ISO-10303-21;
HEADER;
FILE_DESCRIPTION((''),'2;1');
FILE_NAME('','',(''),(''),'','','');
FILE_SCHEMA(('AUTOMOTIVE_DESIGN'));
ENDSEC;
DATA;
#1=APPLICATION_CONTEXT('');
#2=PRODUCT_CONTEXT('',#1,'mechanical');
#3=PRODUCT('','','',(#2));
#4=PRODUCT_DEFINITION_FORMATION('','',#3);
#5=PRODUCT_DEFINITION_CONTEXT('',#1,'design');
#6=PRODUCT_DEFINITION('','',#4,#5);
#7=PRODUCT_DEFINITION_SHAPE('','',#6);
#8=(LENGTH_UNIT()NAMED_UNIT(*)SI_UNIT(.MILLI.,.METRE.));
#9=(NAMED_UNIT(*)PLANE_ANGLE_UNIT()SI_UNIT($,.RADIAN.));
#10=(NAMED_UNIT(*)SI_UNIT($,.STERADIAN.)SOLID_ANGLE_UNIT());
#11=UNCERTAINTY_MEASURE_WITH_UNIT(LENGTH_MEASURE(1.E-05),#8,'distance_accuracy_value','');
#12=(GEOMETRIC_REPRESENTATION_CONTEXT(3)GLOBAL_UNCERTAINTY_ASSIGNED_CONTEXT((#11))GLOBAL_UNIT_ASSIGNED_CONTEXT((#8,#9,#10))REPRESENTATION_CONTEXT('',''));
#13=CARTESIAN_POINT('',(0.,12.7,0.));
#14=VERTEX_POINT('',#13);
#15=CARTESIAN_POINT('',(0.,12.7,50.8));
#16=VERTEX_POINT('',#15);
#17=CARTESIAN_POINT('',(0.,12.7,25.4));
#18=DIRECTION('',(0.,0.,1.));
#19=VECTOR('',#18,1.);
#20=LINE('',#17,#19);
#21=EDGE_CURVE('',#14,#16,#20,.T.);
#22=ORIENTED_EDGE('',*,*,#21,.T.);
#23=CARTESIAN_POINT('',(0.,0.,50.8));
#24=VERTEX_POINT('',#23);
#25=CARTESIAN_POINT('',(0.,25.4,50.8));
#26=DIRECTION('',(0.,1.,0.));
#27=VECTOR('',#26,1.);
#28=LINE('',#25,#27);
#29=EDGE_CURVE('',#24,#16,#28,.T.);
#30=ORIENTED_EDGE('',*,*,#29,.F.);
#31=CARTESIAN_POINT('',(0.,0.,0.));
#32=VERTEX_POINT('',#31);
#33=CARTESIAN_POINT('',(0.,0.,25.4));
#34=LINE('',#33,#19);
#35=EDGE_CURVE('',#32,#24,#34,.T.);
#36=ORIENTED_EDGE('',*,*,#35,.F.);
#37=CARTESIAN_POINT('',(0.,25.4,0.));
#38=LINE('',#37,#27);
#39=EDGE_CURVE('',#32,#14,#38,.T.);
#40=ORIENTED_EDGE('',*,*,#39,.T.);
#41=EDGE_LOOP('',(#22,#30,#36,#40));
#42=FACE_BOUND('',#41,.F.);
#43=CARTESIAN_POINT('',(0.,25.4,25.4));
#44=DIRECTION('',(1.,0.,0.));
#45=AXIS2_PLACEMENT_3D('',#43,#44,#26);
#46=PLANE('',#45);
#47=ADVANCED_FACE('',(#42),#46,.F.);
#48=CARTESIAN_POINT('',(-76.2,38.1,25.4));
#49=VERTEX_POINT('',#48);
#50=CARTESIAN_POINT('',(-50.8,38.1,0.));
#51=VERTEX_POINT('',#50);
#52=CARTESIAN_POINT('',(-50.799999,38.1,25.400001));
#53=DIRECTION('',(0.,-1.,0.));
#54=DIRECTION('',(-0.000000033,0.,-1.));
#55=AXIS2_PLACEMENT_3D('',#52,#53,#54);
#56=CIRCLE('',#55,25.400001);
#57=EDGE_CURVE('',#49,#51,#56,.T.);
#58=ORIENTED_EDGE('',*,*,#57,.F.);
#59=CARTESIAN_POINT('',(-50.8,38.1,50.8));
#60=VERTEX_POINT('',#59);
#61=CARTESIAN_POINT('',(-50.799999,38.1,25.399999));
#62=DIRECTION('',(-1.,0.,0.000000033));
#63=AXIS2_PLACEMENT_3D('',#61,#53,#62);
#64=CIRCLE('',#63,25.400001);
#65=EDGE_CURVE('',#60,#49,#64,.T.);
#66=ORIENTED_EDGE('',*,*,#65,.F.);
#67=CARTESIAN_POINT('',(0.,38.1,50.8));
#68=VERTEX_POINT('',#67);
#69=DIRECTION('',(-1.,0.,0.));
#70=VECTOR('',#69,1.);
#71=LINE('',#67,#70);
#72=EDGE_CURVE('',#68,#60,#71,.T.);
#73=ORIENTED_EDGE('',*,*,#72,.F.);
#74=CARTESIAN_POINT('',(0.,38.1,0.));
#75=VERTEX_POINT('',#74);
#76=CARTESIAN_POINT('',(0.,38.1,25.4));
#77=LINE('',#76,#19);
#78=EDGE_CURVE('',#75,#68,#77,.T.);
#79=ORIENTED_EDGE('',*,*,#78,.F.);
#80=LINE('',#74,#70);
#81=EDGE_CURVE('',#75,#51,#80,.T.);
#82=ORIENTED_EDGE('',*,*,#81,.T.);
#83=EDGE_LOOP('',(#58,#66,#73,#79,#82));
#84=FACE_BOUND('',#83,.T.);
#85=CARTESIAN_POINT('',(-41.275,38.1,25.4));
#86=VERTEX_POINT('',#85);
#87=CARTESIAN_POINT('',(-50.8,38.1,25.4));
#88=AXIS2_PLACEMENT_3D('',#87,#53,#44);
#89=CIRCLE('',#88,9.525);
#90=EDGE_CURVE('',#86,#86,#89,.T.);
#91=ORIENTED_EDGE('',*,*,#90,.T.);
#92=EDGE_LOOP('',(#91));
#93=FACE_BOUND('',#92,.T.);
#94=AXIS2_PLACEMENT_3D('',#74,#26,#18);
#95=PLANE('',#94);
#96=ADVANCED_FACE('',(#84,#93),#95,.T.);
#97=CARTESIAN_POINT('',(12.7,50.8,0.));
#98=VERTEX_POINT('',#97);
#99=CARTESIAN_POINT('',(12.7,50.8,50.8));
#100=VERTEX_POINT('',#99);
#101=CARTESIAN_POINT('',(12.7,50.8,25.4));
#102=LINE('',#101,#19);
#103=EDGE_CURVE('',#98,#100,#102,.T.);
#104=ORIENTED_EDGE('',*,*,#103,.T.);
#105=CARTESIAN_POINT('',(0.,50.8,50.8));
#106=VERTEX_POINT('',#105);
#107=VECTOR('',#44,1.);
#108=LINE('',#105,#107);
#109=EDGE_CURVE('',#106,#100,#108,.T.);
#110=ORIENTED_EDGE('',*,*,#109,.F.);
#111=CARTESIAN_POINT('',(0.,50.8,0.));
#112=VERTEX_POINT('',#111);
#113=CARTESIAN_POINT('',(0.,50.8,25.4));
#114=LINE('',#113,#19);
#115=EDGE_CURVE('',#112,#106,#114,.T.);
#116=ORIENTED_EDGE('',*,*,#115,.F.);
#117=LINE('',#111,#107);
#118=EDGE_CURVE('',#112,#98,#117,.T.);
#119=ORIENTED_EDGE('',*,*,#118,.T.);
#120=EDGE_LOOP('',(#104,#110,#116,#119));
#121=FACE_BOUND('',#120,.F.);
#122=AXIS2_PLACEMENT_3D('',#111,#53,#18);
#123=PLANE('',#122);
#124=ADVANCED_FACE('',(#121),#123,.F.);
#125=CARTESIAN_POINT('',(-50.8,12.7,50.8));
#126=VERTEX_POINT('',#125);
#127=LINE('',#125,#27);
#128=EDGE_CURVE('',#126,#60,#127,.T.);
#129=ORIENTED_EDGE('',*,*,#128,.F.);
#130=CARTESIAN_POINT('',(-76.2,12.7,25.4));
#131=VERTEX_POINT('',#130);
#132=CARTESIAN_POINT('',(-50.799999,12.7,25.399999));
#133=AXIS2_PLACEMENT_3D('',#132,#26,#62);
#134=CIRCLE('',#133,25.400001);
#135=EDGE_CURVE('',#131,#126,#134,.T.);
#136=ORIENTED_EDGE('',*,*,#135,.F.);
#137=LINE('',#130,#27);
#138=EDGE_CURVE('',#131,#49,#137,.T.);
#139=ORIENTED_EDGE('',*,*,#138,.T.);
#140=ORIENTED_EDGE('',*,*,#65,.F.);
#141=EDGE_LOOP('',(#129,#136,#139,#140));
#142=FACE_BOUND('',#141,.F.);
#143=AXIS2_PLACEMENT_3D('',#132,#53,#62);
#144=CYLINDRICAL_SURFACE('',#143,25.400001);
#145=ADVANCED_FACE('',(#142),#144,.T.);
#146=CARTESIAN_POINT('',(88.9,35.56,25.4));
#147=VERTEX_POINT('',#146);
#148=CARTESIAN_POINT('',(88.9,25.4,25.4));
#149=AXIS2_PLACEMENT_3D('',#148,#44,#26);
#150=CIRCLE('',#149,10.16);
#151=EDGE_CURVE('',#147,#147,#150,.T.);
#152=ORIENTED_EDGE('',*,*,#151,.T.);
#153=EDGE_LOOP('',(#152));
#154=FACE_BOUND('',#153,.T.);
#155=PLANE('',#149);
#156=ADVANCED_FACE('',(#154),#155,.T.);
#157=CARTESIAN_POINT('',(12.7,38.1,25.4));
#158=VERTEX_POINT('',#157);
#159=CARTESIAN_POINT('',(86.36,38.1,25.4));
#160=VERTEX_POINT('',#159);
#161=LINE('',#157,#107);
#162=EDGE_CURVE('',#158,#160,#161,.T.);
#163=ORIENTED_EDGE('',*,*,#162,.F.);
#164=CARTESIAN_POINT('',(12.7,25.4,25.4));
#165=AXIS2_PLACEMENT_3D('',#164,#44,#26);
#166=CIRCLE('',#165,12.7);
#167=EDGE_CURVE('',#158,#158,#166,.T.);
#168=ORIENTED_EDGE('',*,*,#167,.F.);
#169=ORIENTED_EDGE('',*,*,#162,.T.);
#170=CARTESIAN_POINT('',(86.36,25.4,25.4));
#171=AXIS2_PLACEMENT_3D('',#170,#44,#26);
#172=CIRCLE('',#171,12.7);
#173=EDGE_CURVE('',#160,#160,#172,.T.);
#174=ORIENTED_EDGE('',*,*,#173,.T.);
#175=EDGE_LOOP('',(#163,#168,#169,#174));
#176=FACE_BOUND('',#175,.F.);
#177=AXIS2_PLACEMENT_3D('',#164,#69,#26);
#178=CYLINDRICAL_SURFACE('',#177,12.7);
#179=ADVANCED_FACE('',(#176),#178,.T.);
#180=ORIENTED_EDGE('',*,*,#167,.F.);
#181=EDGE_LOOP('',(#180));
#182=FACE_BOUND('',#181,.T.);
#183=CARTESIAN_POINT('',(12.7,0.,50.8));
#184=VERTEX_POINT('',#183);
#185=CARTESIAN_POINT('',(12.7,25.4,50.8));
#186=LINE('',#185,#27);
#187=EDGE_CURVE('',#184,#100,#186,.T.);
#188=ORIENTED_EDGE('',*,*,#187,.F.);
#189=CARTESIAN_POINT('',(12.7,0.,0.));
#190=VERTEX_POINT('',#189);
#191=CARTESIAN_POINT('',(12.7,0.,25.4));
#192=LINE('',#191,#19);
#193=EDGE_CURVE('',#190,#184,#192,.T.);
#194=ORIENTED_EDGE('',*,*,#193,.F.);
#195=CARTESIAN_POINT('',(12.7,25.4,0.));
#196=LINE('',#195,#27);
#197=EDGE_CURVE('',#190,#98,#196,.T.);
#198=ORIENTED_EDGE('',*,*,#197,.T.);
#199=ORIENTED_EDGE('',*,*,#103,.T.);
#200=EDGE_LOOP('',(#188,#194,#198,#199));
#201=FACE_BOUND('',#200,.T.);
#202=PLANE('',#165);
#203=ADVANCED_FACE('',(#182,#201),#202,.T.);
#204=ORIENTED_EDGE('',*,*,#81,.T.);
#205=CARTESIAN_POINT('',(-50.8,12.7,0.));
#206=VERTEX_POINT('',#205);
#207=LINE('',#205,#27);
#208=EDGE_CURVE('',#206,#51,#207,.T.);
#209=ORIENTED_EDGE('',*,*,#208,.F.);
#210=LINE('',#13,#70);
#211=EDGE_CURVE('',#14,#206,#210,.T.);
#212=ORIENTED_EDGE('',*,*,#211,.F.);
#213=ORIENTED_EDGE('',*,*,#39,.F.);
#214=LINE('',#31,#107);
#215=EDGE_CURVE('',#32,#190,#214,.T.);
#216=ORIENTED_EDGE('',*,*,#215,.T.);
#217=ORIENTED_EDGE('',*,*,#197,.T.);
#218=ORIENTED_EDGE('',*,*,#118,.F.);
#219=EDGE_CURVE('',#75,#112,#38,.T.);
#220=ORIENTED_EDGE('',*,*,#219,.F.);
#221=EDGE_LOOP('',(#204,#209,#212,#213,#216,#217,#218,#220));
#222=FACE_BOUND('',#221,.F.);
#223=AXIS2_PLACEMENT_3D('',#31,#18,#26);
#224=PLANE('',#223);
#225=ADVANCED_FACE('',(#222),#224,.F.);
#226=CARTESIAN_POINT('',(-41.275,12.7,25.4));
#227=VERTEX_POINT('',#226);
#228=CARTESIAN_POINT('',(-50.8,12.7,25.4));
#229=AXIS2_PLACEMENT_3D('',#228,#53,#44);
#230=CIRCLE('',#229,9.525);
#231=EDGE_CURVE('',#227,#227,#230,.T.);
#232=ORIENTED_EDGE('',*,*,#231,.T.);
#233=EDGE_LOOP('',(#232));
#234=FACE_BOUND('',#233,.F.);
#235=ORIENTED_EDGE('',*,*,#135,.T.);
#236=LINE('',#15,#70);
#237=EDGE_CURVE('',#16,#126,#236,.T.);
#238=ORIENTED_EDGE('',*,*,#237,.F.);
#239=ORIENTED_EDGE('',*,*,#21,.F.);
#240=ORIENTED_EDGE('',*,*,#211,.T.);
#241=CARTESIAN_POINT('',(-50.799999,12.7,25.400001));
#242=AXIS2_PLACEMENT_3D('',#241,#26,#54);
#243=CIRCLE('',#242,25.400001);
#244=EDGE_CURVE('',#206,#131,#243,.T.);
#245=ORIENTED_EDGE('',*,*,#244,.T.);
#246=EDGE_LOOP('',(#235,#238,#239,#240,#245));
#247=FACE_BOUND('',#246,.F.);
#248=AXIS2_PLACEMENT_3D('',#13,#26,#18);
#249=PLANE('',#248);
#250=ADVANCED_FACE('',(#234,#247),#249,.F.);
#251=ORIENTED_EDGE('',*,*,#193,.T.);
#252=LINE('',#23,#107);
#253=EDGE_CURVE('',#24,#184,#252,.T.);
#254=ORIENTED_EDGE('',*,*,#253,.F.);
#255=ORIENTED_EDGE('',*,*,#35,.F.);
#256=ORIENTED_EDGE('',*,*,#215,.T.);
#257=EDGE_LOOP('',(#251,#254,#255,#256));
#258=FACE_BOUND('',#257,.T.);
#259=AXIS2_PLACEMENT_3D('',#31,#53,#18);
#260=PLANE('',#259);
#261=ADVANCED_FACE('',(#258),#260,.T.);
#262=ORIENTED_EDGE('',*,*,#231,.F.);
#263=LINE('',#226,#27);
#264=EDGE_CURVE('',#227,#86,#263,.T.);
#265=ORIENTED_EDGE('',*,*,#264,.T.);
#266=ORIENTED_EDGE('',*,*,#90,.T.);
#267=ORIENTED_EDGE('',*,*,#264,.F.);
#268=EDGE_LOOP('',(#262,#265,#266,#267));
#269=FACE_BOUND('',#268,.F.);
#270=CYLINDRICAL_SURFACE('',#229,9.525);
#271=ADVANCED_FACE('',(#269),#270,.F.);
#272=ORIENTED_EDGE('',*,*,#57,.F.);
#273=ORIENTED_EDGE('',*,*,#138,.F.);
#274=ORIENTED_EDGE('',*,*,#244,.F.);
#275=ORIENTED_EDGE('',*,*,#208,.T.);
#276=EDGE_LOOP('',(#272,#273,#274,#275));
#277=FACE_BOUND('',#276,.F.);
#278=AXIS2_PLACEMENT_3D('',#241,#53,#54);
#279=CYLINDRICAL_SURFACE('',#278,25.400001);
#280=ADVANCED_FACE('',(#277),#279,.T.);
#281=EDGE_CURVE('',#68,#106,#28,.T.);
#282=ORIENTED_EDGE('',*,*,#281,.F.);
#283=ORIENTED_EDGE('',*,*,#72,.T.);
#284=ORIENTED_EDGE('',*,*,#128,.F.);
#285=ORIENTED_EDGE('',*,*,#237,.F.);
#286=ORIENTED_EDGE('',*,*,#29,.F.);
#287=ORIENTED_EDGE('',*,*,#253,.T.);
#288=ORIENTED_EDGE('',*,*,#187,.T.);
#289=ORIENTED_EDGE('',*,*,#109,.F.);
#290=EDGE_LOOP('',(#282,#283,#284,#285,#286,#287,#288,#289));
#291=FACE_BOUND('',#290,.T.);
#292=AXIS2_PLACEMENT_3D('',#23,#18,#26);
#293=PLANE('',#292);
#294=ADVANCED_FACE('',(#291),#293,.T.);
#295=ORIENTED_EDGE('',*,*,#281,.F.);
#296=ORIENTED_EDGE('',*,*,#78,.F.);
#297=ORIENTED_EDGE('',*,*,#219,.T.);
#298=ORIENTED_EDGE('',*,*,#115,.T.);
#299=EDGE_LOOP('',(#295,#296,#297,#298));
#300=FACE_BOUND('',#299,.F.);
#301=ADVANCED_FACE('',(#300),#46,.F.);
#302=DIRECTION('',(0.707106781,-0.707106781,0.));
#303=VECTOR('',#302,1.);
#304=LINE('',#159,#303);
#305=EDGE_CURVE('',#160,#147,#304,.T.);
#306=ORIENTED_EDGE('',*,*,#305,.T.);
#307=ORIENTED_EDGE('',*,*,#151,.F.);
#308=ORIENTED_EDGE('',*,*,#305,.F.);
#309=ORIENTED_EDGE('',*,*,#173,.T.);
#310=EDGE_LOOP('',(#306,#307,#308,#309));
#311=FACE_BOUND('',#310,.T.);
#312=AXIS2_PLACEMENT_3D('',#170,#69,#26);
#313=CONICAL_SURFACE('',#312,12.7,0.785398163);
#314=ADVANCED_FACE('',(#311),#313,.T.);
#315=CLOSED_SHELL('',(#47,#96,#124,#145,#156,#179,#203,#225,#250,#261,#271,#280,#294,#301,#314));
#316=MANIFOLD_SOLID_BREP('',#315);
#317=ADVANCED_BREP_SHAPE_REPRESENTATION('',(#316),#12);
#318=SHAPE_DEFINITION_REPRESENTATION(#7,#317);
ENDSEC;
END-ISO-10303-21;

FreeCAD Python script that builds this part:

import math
import FreeCAD as App
import Part
import Sketcher
Q = App.Units.Quantity


def edges_at(feature, points):
    """Names of the edges that pass closest to the given points."""
    edges = feature.Shape.Edges
    near = lambda p: min(range(len(edges)), key=lambda i: edges[i].distToShape(Part.Vertex(*p))[0])
    return sorted({f"Edge{near(p) + 1}" for p in points})


def add_polygon(sketch, points):
    """Adds a closed chain of lines whose ends are joined by coincident constraints."""
    first, n = sketch.GeometryCount, len(points)
    for a, b in zip(points, points[1:] + points[:1]):
        sketch.addGeometry(Part.LineSegment(App.Vector(*a, 0), App.Vector(*b, 0)), False)
    for i in range(n):
        sketch.addConstraint(Sketcher.Constraint("Coincident", first + i, 2, first + (i + 1) % n, 1))

doc = App.newDocument("Part")
params = doc.addObject("Spreadsheet::Sheet", "Params")
for row, (alias, value) in enumerate([
    ("sketch1_width", "2 in"),
    ("pad1_length", "0.5 in"),
    ("sketch2_diameter", "1 in"),
    ("pad2_length", "3 in"),
    ("chamfer_size", "0.1 in"),
    ("sketch3_width", "1 in"),
    ("sketch3_height", "2 in"),
    ("pad3_length", "3 in"),
    ("sketch4_radius", "1 in"),
    ("sketch4_diameter", "0.75 in"),
], start=1):
    params.set(f"A{row}", alias)
    params.set(f"B{row}", "=" + value)
    params.setAlias(f"B{row}", alias)

body = doc.addObject("PartDesign::Body", "Body")

# Sketch on YZ plane
sketch1 = body.newObject("Sketcher::SketchObject", "Sketch")
sketch1.AttachmentSupport = (doc.getObject("YZ_Plane"), [""])
sketch1.MapMode = "FlatFace"
add_polygon(sketch1, [(0, 51), (0, 0), (51, 0), (51, 51)])  # lines 0-3
sketch1.addConstraint([
    Sketcher.Constraint("Vertical", 0),
    Sketcher.Constraint("Horizontal", 1),
    Sketcher.Constraint("Vertical", 2),
    Sketcher.Constraint("Horizontal", 3),
    Sketcher.Constraint("Coincident", 0, 2, -1, 1),
    Sketcher.Constraint("Equal", 3, 0),
    Sketcher.Constraint("DistanceX", 1, 1, 1, 2, Q("2 in")),
])
sketch1.setExpression("Constraints[10]", "Params.sketch1_width")
pad1 = body.newObject("PartDesign::Pad", "Pad")
pad1.Profile = sketch1
pad1.setExpression("Length", "Params.pad1_length")

# Sketch on YZ plane
sketch2 = body.newObject("Sketcher::SketchObject", "Sketch001")
sketch2.AttachmentSupport = (doc.getObject("YZ_Plane"), [""])
sketch2.MapMode = "FlatFace"
sketch2.AttachmentOffset = App.Placement(App.Vector(0, 0, 0.5 * 25.4), App.Rotation())
sketch2.addGeometry(Part.Circle(App.Vector(25, 25, 0), App.Vector(0, 0, 1), 13), False)
sketch2.addConstraint([
    Sketcher.Constraint("Diameter", 0, Q("1 in")),
    Sketcher.Constraint("DistanceX", -1, 1, 0, 3, Q("1 in")),
    Sketcher.Constraint("DistanceY", -1, 1, 0, 3, Q("1 in")),
])
sketch2.setExpression("Constraints[0]", "Params.sketch2_diameter")
pad2 = body.newObject("PartDesign::Pad", "Pad001")
pad2.Profile = sketch2
pad2.setExpression("Length", "Params.pad2_length")
doc.recompute()

chamfer = body.newObject("PartDesign::Chamfer", "Chamfer")
chamfer.Base = (pad2, edges_at(pad2, [(88.9, 12.7, 25.4)]))
chamfer.setExpression("Size", "Params.chamfer_size")

# Sketch on YZ plane
sketch3 = body.newObject("Sketcher::SketchObject", "Sketch002")
sketch3.AttachmentSupport = (doc.getObject("YZ_Plane"), [""])
sketch3.MapMode = "FlatFace"
add_polygon(sketch3, [(38, 51), (38, 0), (13, 0), (13, 51)])  # lines 0-3
sketch3.addConstraint([
    Sketcher.Constraint("Vertical", 0),
    Sketcher.Constraint("Horizontal", 1),
    Sketcher.Constraint("Vertical", 2),
    Sketcher.Constraint("Horizontal", 3),
    Sketcher.Constraint("PointOnObject", 0, 2, -1),
    Sketcher.Constraint("DistanceX", 1, 2, 1, 1, Q("1 in")),
    Sketcher.Constraint("DistanceY", 0, 2, 0, 1, Q("2 in")),
    Sketcher.Constraint("DistanceX", -1, 1, 0, 2, Q("1.5 in")),
])
sketch3.setExpression("Constraints[9]", "Params.sketch3_width")
sketch3.setExpression("Constraints[10]", "Params.sketch3_height")
pad3 = body.newObject("PartDesign::Pad", "Pad002")
pad3.Profile = sketch3
pad3.setExpression("Length", "Params.pad3_length")
pad3.Reversed = True

# Sketch on XZ plane
sketch4 = body.newObject("Sketcher::SketchObject", "Sketch003")
sketch4.AttachmentSupport = (doc.getObject("XZ_Plane"), [""])
sketch4.MapMode = "FlatFace"
sketch4.AttachmentOffset = App.Placement(App.Vector(0, 0, -0.5 * 25.4), App.Rotation())
sketch4.addGeometry([
    Part.ArcOfCircle(Part.Circle(App.Vector(-51, 25, 0), App.Vector(0, 0, 1), 25), math.radians(90), math.radians(180)),  # 0
    Part.LineSegment(App.Vector(-51, 51, 0), App.Vector(-76, 51, 0)),  # 1
    Part.LineSegment(App.Vector(-76, 51, 0), App.Vector(-76, 25, 0)),  # 2
    Part.ArcOfCircle(Part.Circle(App.Vector(-51, 25, 0), App.Vector(0, 0, 1), 25), math.radians(-180), math.radians(-90)),  # 3
    Part.LineSegment(App.Vector(-76, 25, 0), App.Vector(-76, 0, 0)),  # 4
    Part.LineSegment(App.Vector(-76, 0, 0), App.Vector(-51, 0, 0)),  # 5
    Part.Circle(App.Vector(-51, 25, 0), App.Vector(0, 0, 1), 10),  # 6
], False)
sketch4.addConstraint([
    Sketcher.Constraint("Tangent", 0, 1, 1, 1),
    Sketcher.Constraint("Coincident", 1, 2, 2, 1),
    Sketcher.Constraint("Tangent", 2, 2, 0, 2),
    Sketcher.Constraint("Tangent", 3, 1, 4, 1),
    Sketcher.Constraint("Coincident", 4, 2, 5, 1),
    Sketcher.Constraint("Tangent", 5, 2, 3, 2),
    Sketcher.Constraint("Horizontal", 1),
    Sketcher.Constraint("Vertical", 2),
    Sketcher.Constraint("Vertical", 4),
    Sketcher.Constraint("Horizontal", 5),
    Sketcher.Constraint("Coincident", 3, 3, 0, 3),
    Sketcher.Constraint("Coincident", 6, 3, 0, 3),
    Sketcher.Constraint("Equal", 0, 3),
    Sketcher.Constraint("PointOnObject", 4, 2, -1),
    Sketcher.Constraint("Radius", 0, Q("1 in")),
    Sketcher.Constraint("Diameter", 6, Q("0.75 in")),
    Sketcher.Constraint("DistanceX", 0, 3, -1, 1, Q("2 in")),
])
sketch4.setExpression("Constraints[14]", "Params.sketch4_radius")
sketch4.setExpression("Constraints[15]", "Params.sketch4_diameter")
pocket1 = body.newObject("PartDesign::Pocket", "Pocket")
pocket1.Profile = sketch4
pocket1.Type = "ThroughAll"

doc.recompute()
